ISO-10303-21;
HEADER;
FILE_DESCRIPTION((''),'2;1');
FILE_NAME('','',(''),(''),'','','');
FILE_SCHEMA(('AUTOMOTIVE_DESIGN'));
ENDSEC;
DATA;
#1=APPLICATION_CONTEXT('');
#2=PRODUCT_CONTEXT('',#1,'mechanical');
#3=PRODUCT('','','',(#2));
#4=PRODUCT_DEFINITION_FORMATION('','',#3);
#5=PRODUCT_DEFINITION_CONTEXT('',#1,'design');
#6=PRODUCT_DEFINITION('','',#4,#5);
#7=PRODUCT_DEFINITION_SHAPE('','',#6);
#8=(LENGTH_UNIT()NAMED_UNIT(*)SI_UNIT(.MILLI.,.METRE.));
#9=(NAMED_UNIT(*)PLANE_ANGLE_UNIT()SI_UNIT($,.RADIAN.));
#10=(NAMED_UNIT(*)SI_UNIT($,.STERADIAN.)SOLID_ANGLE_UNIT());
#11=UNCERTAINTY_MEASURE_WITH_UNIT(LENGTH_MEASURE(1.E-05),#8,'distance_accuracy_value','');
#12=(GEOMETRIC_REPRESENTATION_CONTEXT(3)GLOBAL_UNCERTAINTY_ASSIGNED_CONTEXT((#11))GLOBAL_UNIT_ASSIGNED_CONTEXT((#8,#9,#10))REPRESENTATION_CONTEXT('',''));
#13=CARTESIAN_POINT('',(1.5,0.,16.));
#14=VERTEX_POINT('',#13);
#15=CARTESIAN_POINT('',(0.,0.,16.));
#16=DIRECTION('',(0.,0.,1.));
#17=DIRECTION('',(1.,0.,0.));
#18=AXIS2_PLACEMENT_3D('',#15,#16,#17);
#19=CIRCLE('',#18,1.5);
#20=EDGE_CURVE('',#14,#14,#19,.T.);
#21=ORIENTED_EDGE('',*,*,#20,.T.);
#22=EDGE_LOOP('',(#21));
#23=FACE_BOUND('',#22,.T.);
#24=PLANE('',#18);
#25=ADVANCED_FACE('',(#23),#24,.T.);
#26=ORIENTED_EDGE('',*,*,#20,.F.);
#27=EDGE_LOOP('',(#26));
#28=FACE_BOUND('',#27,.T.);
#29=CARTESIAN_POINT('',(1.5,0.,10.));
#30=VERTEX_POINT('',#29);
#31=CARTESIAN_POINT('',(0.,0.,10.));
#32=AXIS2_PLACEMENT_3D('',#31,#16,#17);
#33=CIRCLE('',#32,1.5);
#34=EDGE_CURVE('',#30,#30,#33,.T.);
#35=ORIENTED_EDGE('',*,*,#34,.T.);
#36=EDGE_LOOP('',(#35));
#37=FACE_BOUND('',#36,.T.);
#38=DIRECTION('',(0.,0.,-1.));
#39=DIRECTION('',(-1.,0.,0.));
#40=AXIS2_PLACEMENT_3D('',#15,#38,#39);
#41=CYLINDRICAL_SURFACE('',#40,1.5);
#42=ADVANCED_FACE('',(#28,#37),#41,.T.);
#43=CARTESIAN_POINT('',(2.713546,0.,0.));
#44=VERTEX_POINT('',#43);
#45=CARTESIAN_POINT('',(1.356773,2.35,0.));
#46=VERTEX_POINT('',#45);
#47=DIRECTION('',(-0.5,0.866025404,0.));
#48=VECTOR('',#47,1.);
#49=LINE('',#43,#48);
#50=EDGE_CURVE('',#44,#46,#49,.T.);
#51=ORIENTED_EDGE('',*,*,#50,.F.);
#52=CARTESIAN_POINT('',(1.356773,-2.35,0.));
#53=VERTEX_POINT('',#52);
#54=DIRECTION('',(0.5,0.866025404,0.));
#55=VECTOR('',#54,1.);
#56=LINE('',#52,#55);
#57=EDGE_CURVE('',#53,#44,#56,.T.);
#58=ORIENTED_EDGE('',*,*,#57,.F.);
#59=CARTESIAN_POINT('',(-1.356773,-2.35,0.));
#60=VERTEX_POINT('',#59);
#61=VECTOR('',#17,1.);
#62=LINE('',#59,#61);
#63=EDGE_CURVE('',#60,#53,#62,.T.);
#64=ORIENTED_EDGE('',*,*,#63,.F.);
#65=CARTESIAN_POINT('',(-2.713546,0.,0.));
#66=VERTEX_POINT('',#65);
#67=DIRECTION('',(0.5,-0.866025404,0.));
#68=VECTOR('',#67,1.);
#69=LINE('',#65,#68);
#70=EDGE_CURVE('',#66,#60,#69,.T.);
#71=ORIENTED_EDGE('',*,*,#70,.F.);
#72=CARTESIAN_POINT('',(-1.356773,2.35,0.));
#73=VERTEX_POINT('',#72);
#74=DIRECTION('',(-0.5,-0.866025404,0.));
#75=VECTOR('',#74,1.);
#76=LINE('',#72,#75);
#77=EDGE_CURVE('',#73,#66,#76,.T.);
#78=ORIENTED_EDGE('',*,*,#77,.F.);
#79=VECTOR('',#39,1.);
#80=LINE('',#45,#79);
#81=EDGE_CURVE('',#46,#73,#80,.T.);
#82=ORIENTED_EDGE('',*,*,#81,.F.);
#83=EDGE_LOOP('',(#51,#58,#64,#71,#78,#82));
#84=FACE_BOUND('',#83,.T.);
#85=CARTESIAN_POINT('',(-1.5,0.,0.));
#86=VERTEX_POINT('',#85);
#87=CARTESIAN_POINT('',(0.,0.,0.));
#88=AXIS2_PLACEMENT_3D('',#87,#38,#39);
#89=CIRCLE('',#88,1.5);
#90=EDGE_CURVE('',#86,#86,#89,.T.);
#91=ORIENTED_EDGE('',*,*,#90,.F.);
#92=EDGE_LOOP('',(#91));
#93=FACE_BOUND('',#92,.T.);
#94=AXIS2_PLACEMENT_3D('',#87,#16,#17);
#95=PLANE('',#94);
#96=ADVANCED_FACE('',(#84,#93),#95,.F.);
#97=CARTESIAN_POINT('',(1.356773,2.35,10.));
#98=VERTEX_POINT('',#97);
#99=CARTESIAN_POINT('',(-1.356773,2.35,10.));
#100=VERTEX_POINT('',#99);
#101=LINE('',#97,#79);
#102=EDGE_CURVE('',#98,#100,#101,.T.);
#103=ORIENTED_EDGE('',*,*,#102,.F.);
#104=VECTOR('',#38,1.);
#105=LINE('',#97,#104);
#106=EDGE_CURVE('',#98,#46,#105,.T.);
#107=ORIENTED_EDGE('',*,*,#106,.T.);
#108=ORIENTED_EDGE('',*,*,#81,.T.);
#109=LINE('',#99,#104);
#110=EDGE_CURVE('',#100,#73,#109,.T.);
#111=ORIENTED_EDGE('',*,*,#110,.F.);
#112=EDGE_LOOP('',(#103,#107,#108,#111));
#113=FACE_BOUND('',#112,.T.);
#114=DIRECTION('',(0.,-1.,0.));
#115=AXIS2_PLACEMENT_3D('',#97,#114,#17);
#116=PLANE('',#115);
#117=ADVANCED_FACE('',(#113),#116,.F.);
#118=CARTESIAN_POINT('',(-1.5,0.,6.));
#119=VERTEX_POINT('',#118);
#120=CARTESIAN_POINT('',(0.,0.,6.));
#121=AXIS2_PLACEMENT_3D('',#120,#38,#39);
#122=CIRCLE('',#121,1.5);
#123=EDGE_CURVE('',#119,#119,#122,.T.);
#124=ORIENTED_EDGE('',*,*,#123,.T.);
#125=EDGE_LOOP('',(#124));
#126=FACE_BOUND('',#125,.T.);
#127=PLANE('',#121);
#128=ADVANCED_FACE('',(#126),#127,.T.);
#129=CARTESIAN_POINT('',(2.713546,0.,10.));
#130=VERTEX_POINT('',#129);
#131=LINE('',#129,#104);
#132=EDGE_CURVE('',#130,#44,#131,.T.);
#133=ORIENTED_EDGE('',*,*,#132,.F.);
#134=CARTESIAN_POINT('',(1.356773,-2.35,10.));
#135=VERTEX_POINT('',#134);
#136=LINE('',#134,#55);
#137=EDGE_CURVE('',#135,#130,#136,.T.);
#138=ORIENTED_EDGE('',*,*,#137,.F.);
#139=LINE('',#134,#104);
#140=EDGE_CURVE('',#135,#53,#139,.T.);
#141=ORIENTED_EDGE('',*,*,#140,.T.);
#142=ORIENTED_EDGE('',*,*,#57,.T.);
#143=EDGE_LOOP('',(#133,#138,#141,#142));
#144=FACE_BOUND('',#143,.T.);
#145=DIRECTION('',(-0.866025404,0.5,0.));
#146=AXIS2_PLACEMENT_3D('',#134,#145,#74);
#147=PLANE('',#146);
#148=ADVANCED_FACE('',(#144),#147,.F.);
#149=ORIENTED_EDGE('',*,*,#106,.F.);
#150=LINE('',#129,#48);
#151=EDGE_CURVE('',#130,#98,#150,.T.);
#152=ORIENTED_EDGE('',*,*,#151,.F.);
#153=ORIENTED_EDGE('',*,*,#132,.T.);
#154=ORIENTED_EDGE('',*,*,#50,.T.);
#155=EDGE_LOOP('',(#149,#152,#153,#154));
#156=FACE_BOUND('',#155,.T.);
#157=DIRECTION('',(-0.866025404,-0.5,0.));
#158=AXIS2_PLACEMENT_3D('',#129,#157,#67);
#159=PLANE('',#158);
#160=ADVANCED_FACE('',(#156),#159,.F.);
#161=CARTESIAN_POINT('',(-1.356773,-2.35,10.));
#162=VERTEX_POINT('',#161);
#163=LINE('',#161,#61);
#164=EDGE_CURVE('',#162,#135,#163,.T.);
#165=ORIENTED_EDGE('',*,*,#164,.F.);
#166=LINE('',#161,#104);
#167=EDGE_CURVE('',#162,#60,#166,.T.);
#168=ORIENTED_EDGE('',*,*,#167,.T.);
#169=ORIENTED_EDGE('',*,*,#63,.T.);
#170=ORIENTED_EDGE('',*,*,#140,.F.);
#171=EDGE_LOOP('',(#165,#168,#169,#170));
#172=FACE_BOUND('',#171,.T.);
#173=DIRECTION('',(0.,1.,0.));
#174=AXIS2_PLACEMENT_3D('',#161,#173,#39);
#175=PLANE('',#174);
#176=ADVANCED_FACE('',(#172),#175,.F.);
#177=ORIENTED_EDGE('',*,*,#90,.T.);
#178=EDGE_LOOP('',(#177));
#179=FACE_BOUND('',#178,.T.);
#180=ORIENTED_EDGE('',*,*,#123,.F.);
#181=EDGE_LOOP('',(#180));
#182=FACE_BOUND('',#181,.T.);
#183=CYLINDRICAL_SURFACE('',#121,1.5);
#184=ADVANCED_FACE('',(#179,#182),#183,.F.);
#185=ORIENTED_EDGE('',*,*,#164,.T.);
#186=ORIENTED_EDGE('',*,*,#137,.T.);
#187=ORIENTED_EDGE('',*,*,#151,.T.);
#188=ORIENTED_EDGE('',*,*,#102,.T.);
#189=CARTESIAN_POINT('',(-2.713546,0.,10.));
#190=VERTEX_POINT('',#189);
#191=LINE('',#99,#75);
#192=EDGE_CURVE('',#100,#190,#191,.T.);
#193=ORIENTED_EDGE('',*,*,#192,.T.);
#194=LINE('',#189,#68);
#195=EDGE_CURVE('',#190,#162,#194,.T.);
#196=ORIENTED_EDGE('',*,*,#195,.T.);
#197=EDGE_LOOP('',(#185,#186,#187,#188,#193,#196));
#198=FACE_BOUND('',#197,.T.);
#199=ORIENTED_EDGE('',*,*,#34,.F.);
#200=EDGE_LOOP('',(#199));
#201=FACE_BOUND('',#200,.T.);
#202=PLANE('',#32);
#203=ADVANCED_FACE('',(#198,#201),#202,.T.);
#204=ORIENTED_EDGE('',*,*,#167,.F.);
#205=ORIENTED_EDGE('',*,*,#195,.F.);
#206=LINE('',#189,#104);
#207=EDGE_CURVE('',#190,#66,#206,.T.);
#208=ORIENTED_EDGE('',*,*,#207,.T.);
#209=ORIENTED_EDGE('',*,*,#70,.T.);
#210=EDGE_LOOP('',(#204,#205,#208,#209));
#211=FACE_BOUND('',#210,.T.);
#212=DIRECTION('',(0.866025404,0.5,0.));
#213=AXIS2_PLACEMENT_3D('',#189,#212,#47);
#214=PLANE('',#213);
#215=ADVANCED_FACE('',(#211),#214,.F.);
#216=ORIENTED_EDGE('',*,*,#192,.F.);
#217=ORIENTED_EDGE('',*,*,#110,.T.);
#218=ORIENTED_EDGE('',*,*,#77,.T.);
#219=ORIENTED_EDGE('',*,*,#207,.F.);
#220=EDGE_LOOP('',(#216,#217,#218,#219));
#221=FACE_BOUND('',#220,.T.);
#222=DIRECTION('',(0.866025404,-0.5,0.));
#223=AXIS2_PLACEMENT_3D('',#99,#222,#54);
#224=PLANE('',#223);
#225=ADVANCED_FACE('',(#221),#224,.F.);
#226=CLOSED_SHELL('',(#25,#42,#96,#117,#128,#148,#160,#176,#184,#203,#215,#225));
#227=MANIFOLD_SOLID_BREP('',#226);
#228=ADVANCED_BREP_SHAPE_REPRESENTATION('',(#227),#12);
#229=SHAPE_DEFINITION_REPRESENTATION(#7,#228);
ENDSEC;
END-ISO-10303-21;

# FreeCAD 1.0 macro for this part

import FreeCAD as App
import Part
import Sketcher
Q = App.Units.Quantity


def add_polygon(sketch, points):
    """Adds a closed chain of lines whose ends are joined by coincident constraints."""
    first, n = sketch.GeometryCount, len(points)
    for a, b in zip(points, points[1:] + points[:1]):
        sketch.addGeometry(Part.LineSegment(App.Vector(*a, 0), App.Vector(*b, 0)), False)
    for i in range(n):
        sketch.addConstraint(Sketcher.Constraint("Coincident", first + i, 2, first + (i + 1) % n, 1))

doc = App.newDocument("Part")
body = doc.addObject("PartDesign::Body", "Body")

sketch1 = body.newObject("Sketcher::SketchObject", "Sketch")
sketch1.AttachmentSupport = (doc.getObject("XY_Plane"), [""])
sketch1.MapMode = "FlatFace"
add_polygon(sketch1, [(2.7, 0), (1.4, 2.4), (-1.4, 2.4), (-2.7, 0), (-1.4, -2.4), (1.4, -2.4)])
sketch1.addConstraint([
    Sketcher.Constraint("Horizontal", 1),
    Sketcher.Constraint("Horizontal", 4),
    Sketcher.Constraint("Symmetric", 0, 2, 3, 2, -1, 1),
    Sketcher.Constraint("Symmetric", 2, 2, 5, 2, -1, 1),
    Sketcher.Constraint("PointOnObject", 2, 2, -1),
    Sketcher.Constraint("Parallel", 2, 5),
    Sketcher.Constraint("Vertical", 1, 2, 3, 2),
    Sketcher.Constraint("Angle", 0, Q("120 deg")),
    Sketcher.Constraint("DistanceY", 3, 2, 1, 2, 4.7),
    Sketcher.Constraint("DistanceX", 1, 2, 1, 1, 2.713546),
])
pad1 = body.newObject("PartDesign::Pad", "Pad")
pad1.Profile = sketch1
pad1.Length = 10

sketch2 = body.newObject("Sketcher::SketchObject", "Sketch001")
sketch2.AttachmentSupport = (doc.getObject("XY_Plane"), [""])
sketch2.MapMode = "FlatFace"
sketch2.AttachmentOffset = App.Placement(App.Vector(0, 0, 10), App.Rotation())
sketch2.addGeometry(Part.Circle(App.Vector(0, 0, 0), App.Vector(0, 0, 1), 1.5), False)
sketch2.addConstraint([
    Sketcher.Constraint("Coincident", 0, 3, -1, 1),
    Sketcher.Constraint("Diameter", 0, 3.0),
])
pad2 = body.newObject("PartDesign::Pad", "Pad001")
pad2.Profile = sketch2
pad2.Length = 6

sketch3 = body.newObject("Sketcher::SketchObject", "Sketch002")
sketch3.AttachmentSupport = (doc.getObject("XY_Plane"), [""])
sketch3.MapMode = "FlatFace"
sketch3.addGeometry(Part.Circle(App.Vector(0, 0, 0), App.Vector(0, 0, 1), 1.5), False)
sketch3.addConstraint([
    Sketcher.Constraint("Coincident", 0, 3, -1, 1),
    Sketcher.Constraint("Diameter", 0, 3.0),
])
pocket1 = body.newObject("PartDesign::Pocket", "Pocket")
pocket1.Profile = sketch3
pocket1.Length = 6
pocket1.Reversed = True

doc.recompute()
